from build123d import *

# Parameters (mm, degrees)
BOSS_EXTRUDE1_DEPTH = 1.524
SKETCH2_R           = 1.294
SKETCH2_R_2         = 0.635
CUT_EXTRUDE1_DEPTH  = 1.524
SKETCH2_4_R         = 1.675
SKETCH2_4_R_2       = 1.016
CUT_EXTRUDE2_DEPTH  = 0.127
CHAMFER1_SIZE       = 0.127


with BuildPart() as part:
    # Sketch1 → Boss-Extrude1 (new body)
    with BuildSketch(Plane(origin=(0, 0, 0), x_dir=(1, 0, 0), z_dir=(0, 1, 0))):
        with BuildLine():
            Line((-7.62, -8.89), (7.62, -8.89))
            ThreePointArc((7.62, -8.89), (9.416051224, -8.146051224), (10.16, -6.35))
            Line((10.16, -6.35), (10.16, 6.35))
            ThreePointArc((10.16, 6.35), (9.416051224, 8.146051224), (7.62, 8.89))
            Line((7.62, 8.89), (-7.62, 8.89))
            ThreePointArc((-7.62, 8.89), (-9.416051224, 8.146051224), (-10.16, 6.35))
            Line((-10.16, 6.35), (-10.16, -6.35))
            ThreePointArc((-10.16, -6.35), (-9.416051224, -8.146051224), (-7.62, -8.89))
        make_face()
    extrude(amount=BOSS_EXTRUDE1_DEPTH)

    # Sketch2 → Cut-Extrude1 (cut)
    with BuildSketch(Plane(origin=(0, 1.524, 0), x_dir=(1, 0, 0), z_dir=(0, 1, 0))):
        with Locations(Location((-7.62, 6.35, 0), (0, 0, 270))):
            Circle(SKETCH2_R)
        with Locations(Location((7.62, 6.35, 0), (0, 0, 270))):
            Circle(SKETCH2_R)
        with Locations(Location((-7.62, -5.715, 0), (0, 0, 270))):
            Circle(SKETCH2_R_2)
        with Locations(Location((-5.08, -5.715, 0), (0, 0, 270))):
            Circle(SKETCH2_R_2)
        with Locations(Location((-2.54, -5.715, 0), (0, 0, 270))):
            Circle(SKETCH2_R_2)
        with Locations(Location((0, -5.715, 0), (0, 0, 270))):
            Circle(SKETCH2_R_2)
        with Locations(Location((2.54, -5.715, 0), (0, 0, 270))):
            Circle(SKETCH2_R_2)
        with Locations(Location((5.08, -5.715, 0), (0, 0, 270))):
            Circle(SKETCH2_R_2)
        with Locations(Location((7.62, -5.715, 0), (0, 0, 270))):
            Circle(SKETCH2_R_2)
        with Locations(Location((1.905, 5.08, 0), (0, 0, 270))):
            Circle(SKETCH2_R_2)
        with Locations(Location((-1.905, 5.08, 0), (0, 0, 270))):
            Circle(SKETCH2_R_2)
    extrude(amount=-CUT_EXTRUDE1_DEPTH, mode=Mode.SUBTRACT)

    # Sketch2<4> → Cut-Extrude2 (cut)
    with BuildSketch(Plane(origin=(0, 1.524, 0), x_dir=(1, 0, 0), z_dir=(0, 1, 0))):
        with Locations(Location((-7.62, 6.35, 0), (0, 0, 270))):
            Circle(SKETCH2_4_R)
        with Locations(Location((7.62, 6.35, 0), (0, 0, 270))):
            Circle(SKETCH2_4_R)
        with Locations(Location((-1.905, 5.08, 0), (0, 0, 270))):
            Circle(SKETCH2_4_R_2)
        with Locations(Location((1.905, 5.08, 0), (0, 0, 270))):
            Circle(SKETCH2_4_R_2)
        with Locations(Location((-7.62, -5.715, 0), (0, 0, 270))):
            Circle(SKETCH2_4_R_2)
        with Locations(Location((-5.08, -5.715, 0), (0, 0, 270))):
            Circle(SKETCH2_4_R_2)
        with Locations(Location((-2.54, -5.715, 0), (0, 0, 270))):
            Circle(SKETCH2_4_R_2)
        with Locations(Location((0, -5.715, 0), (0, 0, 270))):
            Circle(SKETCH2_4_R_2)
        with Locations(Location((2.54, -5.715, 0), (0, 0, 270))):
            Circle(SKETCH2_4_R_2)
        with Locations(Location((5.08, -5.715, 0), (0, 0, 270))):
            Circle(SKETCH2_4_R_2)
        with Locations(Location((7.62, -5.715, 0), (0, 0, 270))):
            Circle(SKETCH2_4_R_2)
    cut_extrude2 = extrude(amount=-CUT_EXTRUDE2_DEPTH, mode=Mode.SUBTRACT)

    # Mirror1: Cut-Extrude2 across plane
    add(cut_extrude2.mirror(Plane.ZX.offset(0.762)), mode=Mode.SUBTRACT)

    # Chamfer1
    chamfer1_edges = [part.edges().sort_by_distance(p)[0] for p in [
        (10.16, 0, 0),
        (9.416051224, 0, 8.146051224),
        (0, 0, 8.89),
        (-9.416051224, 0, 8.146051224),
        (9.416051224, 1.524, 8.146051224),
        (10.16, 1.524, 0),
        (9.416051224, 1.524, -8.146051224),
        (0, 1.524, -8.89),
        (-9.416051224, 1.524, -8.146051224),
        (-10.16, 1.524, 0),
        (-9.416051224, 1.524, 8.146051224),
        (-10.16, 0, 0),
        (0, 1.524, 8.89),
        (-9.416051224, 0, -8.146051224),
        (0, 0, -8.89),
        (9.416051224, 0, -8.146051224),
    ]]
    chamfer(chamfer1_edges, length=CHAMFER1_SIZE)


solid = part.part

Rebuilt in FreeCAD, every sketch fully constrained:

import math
import FreeCAD as App
import Part
import Sketcher
Q = App.Units.Quantity


def edges_at(feature, points):
    """Names of the edges that pass closest to the given points."""
    edges = feature.Shape.Edges
    near = lambda p: min(range(len(edges)), key=lambda i: edges[i].distToShape(Part.Vertex(*p))[0])
    return sorted({f"Edge{near(p) + 1}" for p in points})

doc = App.newDocument("Part")
params = doc.addObject("Spreadsheet::Sheet", "Params")
for row, (alias, value) in enumerate([
    ("sketch1_radius", "0.1 in"),
    ("sketch1_width", "0.6 in"),
    ("sketch1_height", "0.5 in"),
    ("pad1_length", "0.06 in"),
    ("sketch2_diameter", "0.05 in"),
    ("pocket1_length", "0.06 in"),
    ("sketch3_diameter", "0.08 in"),
    ("pocket2_length", "0.005 in"),
    ("chamfer_size", "0.005 in"),
], start=1):
    params.set(f"A{row}", alias)
    params.set(f"B{row}", "=" + value)
    params.setAlias(f"B{row}", alias)

body = doc.addObject("PartDesign::Body", "Body")

# Sketch on XZ plane
sketch1 = body.newObject("Sketcher::SketchObject", "Sketch")
sketch1.AttachmentSupport = (doc.getObject("XZ_Plane"), [""])
sketch1.MapMode = "FlatFace"
sketch1.addGeometry([
    Part.LineSegment(App.Vector(-7.6, 8.9, 0), App.Vector(7.6, 8.9, 0)),  # 0
    Part.ArcOfCircle(Part.Circle(App.Vector(7.6, 6.3, 0), App.Vector(0, 0, 1), 2.5), math.radians(0), math.radians(90)),  # 1
    Part.LineSegment(App.Vector(10.2, 6.3, 0), App.Vector(10.2, -6.3, 0)),  # 2
    Part.ArcOfCircle(Part.Circle(App.Vector(7.6, -6.3, 0), App.Vector(0, 0, 1), 2.5), math.radians(-90), math.radians(0)),  # 3
    Part.LineSegment(App.Vector(7.6, -8.9, 0), App.Vector(-7.6, -8.9, 0)),  # 4
    Part.ArcOfCircle(Part.Circle(App.Vector(-7.6, -6.3, 0), App.Vector(0, 0, 1), 2.5), math.radians(-180), math.radians(-90)),  # 5
    Part.LineSegment(App.Vector(-10.2, -6.3, 0), App.Vector(-10.2, 6.3, 0)),  # 6
    Part.ArcOfCircle(Part.Circle(App.Vector(-7.6, 6.3, 0), App.Vector(0, 0, 1), 2.5), math.radians(90), math.radians(180)),  # 7
], False)
sketch1.addConstraint([
    Sketcher.Constraint("Tangent", 0, 2, 1, 2),
    Sketcher.Constraint("Tangent", 1, 1, 2, 1),
    Sketcher.Constraint("Tangent", 2, 2, 3, 2),
    Sketcher.Constraint("Tangent", 3, 1, 4, 1),
    Sketcher.Constraint("Tangent", 4, 2, 5, 2),
    Sketcher.Constraint("Tangent", 5, 1, 6, 1),
    Sketcher.Constraint("Tangent", 6, 2, 7, 2),
    Sketcher.Constraint("Tangent", 7, 1, 0, 1),
    Sketcher.Constraint("Horizontal", 0),
    Sketcher.Constraint("Vertical", 2),
    Sketcher.Constraint("Horizontal", 4),
    Sketcher.Constraint("Vertical", 6),
    Sketcher.Constraint("Equal", 1, 3),
    Sketcher.Constraint("Equal", 3, 5),
    Sketcher.Constraint("Equal", 5, 7),
    Sketcher.Constraint("Symmetric", 1, 3, 5, 3, -1, 1),
    Sketcher.Constraint("Radius", 1, Q("0.1 in")),
    Sketcher.Constraint("DistanceX", 0, 1, 0, 2, Q("0.6 in")),
    Sketcher.Constraint("DistanceY", 2, 2, 2, 1, Q("0.5 in")),
])
sketch1.setExpression("Constraints[16]", "Params.sketch1_radius")
sketch1.setExpression("Constraints[17]", "Params.sketch1_width")
sketch1.setExpression("Constraints[18]", "Params.sketch1_height")
pad1 = body.newObject("PartDesign::Pad", "Pad")
pad1.Profile = sketch1
pad1.setExpression("Length", "Params.pad1_length")
pad1.Reversed = True

# Sketch on XZ plane
sketch2 = body.newObject("Sketcher::SketchObject", "Sketch001")
sketch2.AttachmentSupport = (doc.getObject("XZ_Plane"), [""])
sketch2.MapMode = "FlatFace"
sketch2.AttachmentOffset = App.Placement(App.Vector(0, 0, -0.06 * 25.4), App.Rotation())
sketch2.addGeometry([
    Part.Circle(App.Vector(-7.6, -6.3, 0), App.Vector(0, 0, 1), 1.3),  # 0
    Part.Circle(App.Vector(7.6, -6.3, 0), App.Vector(0, 0, 1), 1.3),  # 1
    Part.Circle(App.Vector(-7.6, 5.7, 0), App.Vector(0, 0, 1), 0.6),  # 2
    Part.Circle(App.Vector(-5.1, 5.7, 0), App.Vector(0, 0, 1), 0.6),  # 3
    Part.Circle(App.Vector(-2.5, 5.7, 0), App.Vector(0, 0, 1), 0.6),  # 4
    Part.Circle(App.Vector(0, 5.7, 0), App.Vector(0, 0, 1), 0.6),  # 5
    Part.Circle(App.Vector(2.5, 5.7, 0), App.Vector(0, 0, 1), 0.6),  # 6
    Part.Circle(App.Vector(5.1, 5.7, 0), App.Vector(0, 0, 1), 0.6),  # 7
    Part.Circle(App.Vector(7.6, 5.7, 0), App.Vector(0, 0, 1), 0.6),  # 8
    Part.Circle(App.Vector(1.9, -5.1, 0), App.Vector(0, 0, 1), 0.6),  # 9
    Part.Circle(App.Vector(-1.9, -5.1, 0), App.Vector(0, 0, 1), 0.6),  # 10
], False)
sketch2.addConstraint([
    Sketcher.Constraint("Equal", 0, 1),
    Sketcher.Constraint("Equal", 2, 3),
    Sketcher.Constraint("Equal", 3, 4),
    Sketcher.Constraint("Equal", 4, 5),
    Sketcher.Constraint("Equal", 5, 6),
    Sketcher.Constraint("Equal", 6, 7),
    Sketcher.Constraint("Equal", 7, 8),
    Sketcher.Constraint("Equal", 8, 9),
    Sketcher.Constraint("Equal", 9, 10),
    Sketcher.Constraint("Symmetric", 0, 3, 1, 3, -2),
    Sketcher.Constraint("Symmetric", 4, 3, 6, 3, -2),
    Sketcher.Constraint("Symmetric", 3, 3, 7, 3, -2),
    Sketcher.Constraint("Symmetric", 2, 3, 8, 3, -2),
    Sketcher.Constraint("Symmetric", 9, 3, 10, 3, -2),
    Sketcher.Constraint("PointOnObject", 5, 3, -2),
    Sketcher.Constraint("Horizontal", 2, 3, 3, 3),
    Sketcher.Constraint("Horizontal", 3, 3, 4, 3),
    Sketcher.Constraint("Horizontal", 4, 3, 5, 3),
    Sketcher.Constraint("Vertical", 0, 3, 2, 3),
    Sketcher.Constraint("Diameter", 2, Q("0.05 in")),
    Sketcher.Constraint("DistanceX", 0, 3, -1, 1, Q("0.3 in")),
    Sketcher.Constraint("DistanceX", 3, 3, -1, 1, Q("0.2 in")),
    Sketcher.Constraint("DistanceX", 4, 3, -1, 1, Q("0.1 in")),
    Sketcher.Constraint("DistanceY", 9, 3, -1, 1, Q("0.2 in")),
    Sketcher.Constraint("Diameter", 0, Q("2.588 mm")),
    Sketcher.Constraint("DistanceY", 0, 3, -1, 1, Q("0.25 in")),
    Sketcher.Constraint("DistanceX", 10, 3, 9, 3, Q("0.15 in")),
    Sketcher.Constraint("DistanceY", -1, 1, 2, 3, Q("0.225 in")),
])
sketch2.setExpression("Constraints[19]", "Params.sketch2_diameter")
pocket1 = body.newObject("PartDesign::Pocket", "Pocket")
pocket1.Profile = sketch2
pocket1.setExpression("Length", "Params.pocket1_length")
pocket1.Reversed = True

# Sketch on XZ plane
sketch3 = body.newObject("Sketcher::SketchObject", "Sketch002")
sketch3.AttachmentSupport = (doc.getObject("XZ_Plane"), [""])
sketch3.MapMode = "FlatFace"
sketch3.AttachmentOffset = App.Placement(App.Vector(0, 0, -0.06 * 25.4), App.Rotation())
sketch3.addGeometry([
    Part.Circle(App.Vector(-7.6, -6.3, 0), App.Vector(0, 0, 1), 1.7),  # 0
    Part.Circle(App.Vector(7.6, -6.3, 0), App.Vector(0, 0, 1), 1.7),  # 1
    Part.Circle(App.Vector(-1.9, -5.1, 0), App.Vector(0, 0, 1), 1),  # 2
    Part.Circle(App.Vector(1.9, -5.1, 0), App.Vector(0, 0, 1), 1),  # 3
    Part.Circle(App.Vector(-7.6, 5.7, 0), App.Vector(0, 0, 1), 1),  # 4
    Part.Circle(App.Vector(-5.1, 5.7, 0), App.Vector(0, 0, 1), 1),  # 5
    Part.Circle(App.Vector(-2.5, 5.7, 0), App.Vector(0, 0, 1), 1),  # 6
    Part.Circle(App.Vector(0, 5.7, 0), App.Vector(0, 0, 1), 1),  # 7
    Part.Circle(App.Vector(2.5, 5.7, 0), App.Vector(0, 0, 1), 1),  # 8
    Part.Circle(App.Vector(5.1, 5.7, 0), App.Vector(0, 0, 1), 1),  # 9
    Part.Circle(App.Vector(7.6, 5.7, 0), App.Vector(0, 0, 1), 1),  # 10
], False)
sketch3.addConstraint([
    Sketcher.Constraint("Equal", 0, 1),
    Sketcher.Constraint("Equal", 2, 3),
    Sketcher.Constraint("Equal", 3, 4),
    Sketcher.Constraint("Equal", 4, 5),
    Sketcher.Constraint("Equal", 5, 6),
    Sketcher.Constraint("Equal", 6, 7),
    Sketcher.Constraint("Equal", 7, 8),
    Sketcher.Constraint("Equal", 8, 9),
    Sketcher.Constraint("Equal", 9, 10),
    Sketcher.Constraint("Symmetric", 0, 3, 1, 3, -2),
    Sketcher.Constraint("Symmetric", 2, 3, 3, 3, -2),
    Sketcher.Constraint("Symmetric", 6, 3, 8, 3, -2),
    Sketcher.Constraint("Symmetric", 5, 3, 9, 3, -2),
    Sketcher.Constraint("Symmetric", 4, 3, 10, 3, -2),
    Sketcher.Constraint("PointOnObject", 7, 3, -2),
    Sketcher.Constraint("Horizontal", 4, 3, 5, 3),
    Sketcher.Constraint("Horizontal", 5, 3, 6, 3),
    Sketcher.Constraint("Horizontal", 6, 3, 7, 3),
    Sketcher.Constraint("Vertical", 0, 3, 4, 3),
    Sketcher.Constraint("Diameter", 2, Q("0.08 in")),
    Sketcher.Constraint("DistanceX", 0, 3, -1, 1, Q("0.3 in")),
    Sketcher.Constraint("DistanceY", 2, 3, -1, 1, Q("0.2 in")),
    Sketcher.Constraint("DistanceX", 5, 3, -1, 1, Q("0.2 in")),
    Sketcher.Constraint("DistanceX", 6, 3, -1, 1, Q("0.1 in")),
    Sketcher.Constraint("Diameter", 0, Q("3.35 mm")),
    Sketcher.Constraint("DistanceY", 0, 3, -1, 1, Q("0.25 in")),
    Sketcher.Constraint("DistanceX", 2, 3, 3, 3, Q("0.15 in")),
    Sketcher.Constraint("DistanceY", -1, 1, 4, 3, Q("0.225 in")),
])
sketch3.setExpression("Constraints[19]", "Params.sketch3_diameter")
pocket2 = body.newObject("PartDesign::Pocket", "Pocket001")
pocket2.Profile = sketch3
pocket2.setExpression("Length", "Params.pocket2_length")
pocket2.Reversed = True
doc.recompute()

datumplane = body.newObject("PartDesign::Plane", "DatumPlane")
datumplane.AttachmentSupport = (doc.getObject("XZ_Plane"), [""])
datumplane.MapMode = "FlatFace"
datumplane.AttachmentOffset = App.Placement(App.Vector(0, 0, -0.03 * 25.4), App.Rotation())
mirrored = body.newObject("PartDesign::Mirrored", "Mirrored")
mirrored.Originals = [pocket2]
mirrored.MirrorPlane = (datumplane, [""])
body.Tip = mirrored
doc.recompute()

chamfer = body.newObject("PartDesign::Chamfer", "Chamfer")
chamfer.Base = (mirrored, edges_at(mirrored, [
    (10.16, 0, 0),
    (9.416, 0, 8.146),
    (0, 0, 8.89),
    (-9.416, 0, 8.146),
    (9.416, 1.524, 8.146),
    (10.16, 1.524, 0),
    (9.416, 1.524, -8.146),
    (0, 1.524, -8.89),
    (-9.416, 1.524, -8.146),
    (-10.16, 1.524, 0),
    (-9.416, 1.524, 8.146),
    (-10.16, 0, 0),
    (0, 1.524, 8.89),
    (-9.416, 0, -8.146),
    (0, 0, -8.89),
    (9.416, 0, -8.146),
]))
chamfer.setExpression("Size", "Params.chamfer_size")

doc.recompute()
